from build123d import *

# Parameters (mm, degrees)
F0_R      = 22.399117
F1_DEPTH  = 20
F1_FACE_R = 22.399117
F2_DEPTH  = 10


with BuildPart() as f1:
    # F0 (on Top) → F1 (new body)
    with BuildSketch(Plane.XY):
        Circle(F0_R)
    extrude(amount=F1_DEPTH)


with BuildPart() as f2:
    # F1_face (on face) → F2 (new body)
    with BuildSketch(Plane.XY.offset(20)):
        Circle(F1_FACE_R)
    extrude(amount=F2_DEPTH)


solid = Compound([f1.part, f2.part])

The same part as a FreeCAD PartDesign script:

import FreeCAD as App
import Part
import Sketcher

V = App.Vector
Q = App.Units.Quantity

doc = App.newDocument("Part")
body = doc.addObject("PartDesign::Body", "Body")

# Sketch on XY plane
sketch1 = body.newObject("Sketcher::SketchObject", "Sketch")
sketch1.AttachmentSupport = (doc.getObject("XY_Plane"), [""])
sketch1.MapMode = "FlatFace"
sketch1.addGeometry(Part.Circle(V(0, 0, 0), V(0, 0, 1), 22), False)
sketch1.addConstraint([
    Sketcher.Constraint("Coincident", 0, 3, -1, 1),
    Sketcher.Constraint("Diameter", 0, Q("44.798234 mm")),
])
pad1 = body.newObject("PartDesign::Pad", "Pad")
pad1.Profile = sketch1
pad1.Length = 20
body2 = doc.addObject("PartDesign::Body", "Body001")

# Sketch on XY plane
sketch2 = body2.newObject("Sketcher::SketchObject", "Sketch001")
sketch2.AttachmentSupport = (doc.getObject("XY_Plane001"), [""])
sketch2.MapMode = "FlatFace"
sketch2.AttachmentOffset = App.Placement(V(0, 0, 20), App.Rotation())
sketch2.addGeometry(Part.Circle(V(0, 0, 0), V(0, 0, 1), 22), False)
sketch2.addConstraint([
    Sketcher.Constraint("Coincident", 0, 3, -1, 1),
    Sketcher.Constraint("Diameter", 0, Q("44.798234 mm")),
])
pad2 = body2.newObject("PartDesign::Pad", "Pad001")
pad2.Profile = sketch2
pad2.Length = 10

doc.recompute()
